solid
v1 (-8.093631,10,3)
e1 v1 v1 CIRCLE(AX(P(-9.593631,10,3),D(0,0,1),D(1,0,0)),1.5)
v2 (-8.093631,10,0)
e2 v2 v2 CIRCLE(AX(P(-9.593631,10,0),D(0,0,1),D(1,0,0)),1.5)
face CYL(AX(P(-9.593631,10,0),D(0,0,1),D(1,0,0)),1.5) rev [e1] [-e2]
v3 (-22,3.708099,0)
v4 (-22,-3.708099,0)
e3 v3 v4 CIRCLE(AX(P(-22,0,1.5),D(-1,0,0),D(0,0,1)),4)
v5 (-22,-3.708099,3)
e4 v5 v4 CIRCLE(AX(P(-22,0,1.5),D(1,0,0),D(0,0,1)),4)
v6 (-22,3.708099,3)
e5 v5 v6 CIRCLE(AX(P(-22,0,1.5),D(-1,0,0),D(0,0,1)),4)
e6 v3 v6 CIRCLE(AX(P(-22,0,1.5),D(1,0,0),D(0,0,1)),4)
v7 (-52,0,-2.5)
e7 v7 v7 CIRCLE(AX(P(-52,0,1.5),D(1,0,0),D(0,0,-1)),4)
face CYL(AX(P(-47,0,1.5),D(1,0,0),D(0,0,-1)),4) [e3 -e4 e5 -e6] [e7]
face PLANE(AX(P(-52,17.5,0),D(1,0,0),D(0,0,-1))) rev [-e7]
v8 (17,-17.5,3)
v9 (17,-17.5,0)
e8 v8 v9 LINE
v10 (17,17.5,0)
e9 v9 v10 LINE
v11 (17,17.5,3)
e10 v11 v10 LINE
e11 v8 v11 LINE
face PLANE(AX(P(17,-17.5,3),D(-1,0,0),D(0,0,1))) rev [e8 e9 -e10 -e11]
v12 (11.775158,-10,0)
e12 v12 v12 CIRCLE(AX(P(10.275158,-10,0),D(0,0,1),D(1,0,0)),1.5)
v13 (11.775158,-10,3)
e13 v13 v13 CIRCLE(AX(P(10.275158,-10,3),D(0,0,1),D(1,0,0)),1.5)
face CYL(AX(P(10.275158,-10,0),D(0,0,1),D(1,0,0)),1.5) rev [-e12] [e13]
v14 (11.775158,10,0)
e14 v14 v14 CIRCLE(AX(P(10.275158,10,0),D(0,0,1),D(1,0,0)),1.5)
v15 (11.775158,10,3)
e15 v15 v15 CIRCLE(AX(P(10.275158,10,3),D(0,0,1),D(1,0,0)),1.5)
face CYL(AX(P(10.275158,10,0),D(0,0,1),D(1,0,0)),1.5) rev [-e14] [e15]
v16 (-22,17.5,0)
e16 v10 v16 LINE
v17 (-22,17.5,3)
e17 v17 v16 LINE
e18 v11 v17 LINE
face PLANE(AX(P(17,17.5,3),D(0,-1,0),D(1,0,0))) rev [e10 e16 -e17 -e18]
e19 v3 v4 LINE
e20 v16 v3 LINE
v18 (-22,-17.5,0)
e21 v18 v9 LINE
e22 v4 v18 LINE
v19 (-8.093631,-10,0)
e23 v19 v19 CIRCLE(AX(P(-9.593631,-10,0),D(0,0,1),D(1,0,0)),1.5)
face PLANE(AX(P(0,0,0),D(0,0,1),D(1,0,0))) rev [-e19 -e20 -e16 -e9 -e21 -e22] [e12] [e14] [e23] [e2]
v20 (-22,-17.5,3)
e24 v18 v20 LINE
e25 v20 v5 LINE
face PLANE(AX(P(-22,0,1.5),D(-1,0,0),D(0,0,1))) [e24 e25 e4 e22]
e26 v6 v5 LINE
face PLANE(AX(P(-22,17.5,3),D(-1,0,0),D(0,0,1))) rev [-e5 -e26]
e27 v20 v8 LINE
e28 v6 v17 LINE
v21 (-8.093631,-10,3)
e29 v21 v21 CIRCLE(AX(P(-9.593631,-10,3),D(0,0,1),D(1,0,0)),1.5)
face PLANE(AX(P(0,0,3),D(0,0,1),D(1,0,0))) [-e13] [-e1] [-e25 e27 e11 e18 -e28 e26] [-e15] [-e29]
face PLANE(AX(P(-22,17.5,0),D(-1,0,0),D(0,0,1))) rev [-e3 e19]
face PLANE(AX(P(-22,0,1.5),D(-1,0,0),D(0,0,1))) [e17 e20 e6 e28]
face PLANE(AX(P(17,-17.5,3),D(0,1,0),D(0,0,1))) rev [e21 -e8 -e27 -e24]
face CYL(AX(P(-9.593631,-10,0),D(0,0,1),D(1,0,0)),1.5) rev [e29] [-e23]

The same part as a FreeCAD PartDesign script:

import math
import FreeCAD as App
import Part
import Sketcher

V = App.Vector
Q = App.Units.Quantity

doc = App.newDocument("Part")
body = doc.addObject("PartDesign::Body", "Body")

# Sketch on XY plane
sketch1 = body.newObject("Sketcher::SketchObject", "Sketch")
sketch1.AttachmentSupport = (doc.getObject("XY_Plane"), [""])
sketch1.MapMode = "FlatFace"
sketch1.addGeometry([
    Part.LineSegment(V(-17, 18, 0), V(-17, -18, 0)),
    Part.LineSegment(V(-17, -18, 0), V(17, -18, 0)),
    Part.LineSegment(V(17, -18, 0), V(17, 18, 0)),
    Part.LineSegment(V(17, 18, 0), V(-17, 18, 0)),
], False)
sketch1.addConstraint([
    Sketcher.Constraint("Coincident", 0, 2, 1, 1),
    Sketcher.Constraint("Coincident", 1, 2, 2, 1),
    Sketcher.Constraint("Coincident", 2, 2, 3, 1),
    Sketcher.Constraint("Coincident", 3, 2, 0, 1),
    Sketcher.Constraint("Vertical", 0),
    Sketcher.Constraint("Horizontal", 1),
    Sketcher.Constraint("Vertical", 2),
    Sketcher.Constraint("Horizontal", 3),
    Sketcher.Constraint("Symmetric", 0, 2, 2, 2, -1, 1),
    Sketcher.Constraint("DistanceX", 1, 1, 1, 2, Q("34 mm")),
    Sketcher.Constraint("DistanceY", 0, 2, 0, 1, Q("35 mm")),
])
pad1 = body.newObject("PartDesign::Pad", "Pad")
pad1.Profile = sketch1
pad1.Length = 3

# Sketch on XY plane
sketch2 = body.newObject("Sketcher::SketchObject", "Sketch001")
sketch2.AttachmentSupport = (doc.getObject("XY_Plane"), [""])
sketch2.MapMode = "FlatFace"
sketch2.AttachmentOffset = App.Placement(V(0, 0, 3), App.Rotation())
sketch2.addGeometry([
    Part.LineSegment(V(-22, 5, 0), V(-22, -5, 0)),
    Part.LineSegment(V(-22, -5, 0), V(-17, -5, 0)),
    Part.LineSegment(V(-17, -5, 0), V(-17, 5, 0)),
    Part.LineSegment(V(-17, 5, 0), V(-22, 5, 0)),
], False)
sketch2.addConstraint([
    Sketcher.Constraint("Coincident", 0, 2, 1, 1),
    Sketcher.Constraint("Coincident", 1, 2, 2, 1),
    Sketcher.Constraint("Coincident", 2, 2, 3, 1),
    Sketcher.Constraint("Coincident", 3, 2, 0, 1),
    Sketcher.Constraint("Vertical", 0),
    Sketcher.Constraint("Horizontal", 1),
    Sketcher.Constraint("Vertical", 2),
    Sketcher.Constraint("Horizontal", 3),
    Sketcher.Constraint("DistanceX", 1, 1, 1, 2, Q("5 mm")),
    Sketcher.Constraint("DistanceY", 0, 2, 0, 1, Q("10 mm")),
    Sketcher.Constraint("DistanceX", 0, 2, -1, 1, Q("22 mm")),
    Sketcher.Constraint("DistanceY", 0, 2, -1, 1, Q("5 mm")),
])
pad2 = body.newObject("PartDesign::Pad", "Pad001")
pad2.Profile = sketch2
pad2.Length = 3
pad2.Reversed = True

# Sketch on XY plane
sketch3 = body.newObject("Sketcher::SketchObject", "Sketch002")
sketch3.AttachmentSupport = (doc.getObject("XY_Plane"), [""])
sketch3.MapMode = "FlatFace"
sketch3.AttachmentOffset = App.Placement(V(0, 0, 3), App.Rotation())
sketch3.addGeometry([
    Part.Circle(V(10.3, 10, 0), V(0, 0, 1), 1.5),
    Part.Circle(V(10.3, -10, 0), V(0, 0, 1), 1.5),
    Part.Circle(V(-9.6, 10, 0), V(0, 0, 1), 1.5),
    Part.Circle(V(-9.6, -10, 0), V(0, 0, 1), 1.5),
], False)
sketch3.addConstraint([
    Sketcher.Constraint("Equal", 0, 1),
    Sketcher.Constraint("Equal", 1, 2),
    Sketcher.Constraint("Equal", 2, 3),
    Sketcher.Constraint("Symmetric", 0, 3, 1, 3, -1),
    Sketcher.Constraint("Symmetric", 2, 3, 3, 3, -1),
    Sketcher.Constraint("Horizontal", 0, 3, 2, 3),
    Sketcher.Constraint("Diameter", 0, Q("3 mm")),
    Sketcher.Constraint("DistanceY", -1, 1, 0, 3, Q("10 mm")),
    Sketcher.Constraint("DistanceX", -1, 1, 0, 3, Q("10.275158 mm")),
    Sketcher.Constraint("DistanceX", 2, 3, -1, 1, Q("9.593631 mm")),
])
pocket1 = body.newObject("PartDesign::Pocket", "Pocket")
pocket1.Profile = sketch3
pocket1.Length = 3

# Sketch on YZ plane
sketch4 = body.newObject("Sketcher::SketchObject", "Sketch003")
sketch4.AttachmentSupport = (doc.getObject("YZ_Plane"), [""])
sketch4.MapMode = "FlatFace"
sketch4.AttachmentOffset = App.Placement(V(0, 0, -22), App.Rotation())
sketch4.addGeometry(Part.Circle(V(0, 1.5, 0), V(0, 0, 1), 4), False)
sketch4.addConstraint([
    Sketcher.Constraint("PointOnObject", 0, 3, -2),
    Sketcher.Constraint("Diameter", 0, Q("8 mm")),
    Sketcher.Constraint("DistanceY", -1, 1, 0, 3, Q("1.5 mm")),
])
pad3 = body.newObject("PartDesign::Pad", "Pad002")
pad3.Profile = sketch4
pad3.Length = 25
pad3.Reversed = True

# Sketch on YZ plane
sketch5 = body.newObject("Sketcher::SketchObject", "Sketch004")
sketch5.AttachmentSupport = (doc.getObject("YZ_Plane"), [""])
sketch5.MapMode = "FlatFace"
sketch5.AttachmentOffset = App.Placement(V(0, 0, -17), App.Rotation())
sketch5.addGeometry(Part.Circle(V(0, 1.5, 0), V(0, 0, 1), 4), False)
sketch5.addConstraint([
    Sketcher.Constraint("PointOnObject", 0, 3, -2),
    Sketcher.Constraint("Diameter", 0, Q("8 mm")),
    Sketcher.Constraint("DistanceY", -1, 1, 0, 3, Q("1.5 mm")),
])
pad4 = body.newObject("PartDesign::Pad", "Pad003")
pad4.Profile = sketch5
pad4.Length = 5
pad4.Reversed = True

# Sketch on YZ plane
sketch6 = body.newObject("Sketcher::SketchObject", "Sketch005")
sketch6.AttachmentSupport = (doc.getObject("YZ_Plane"), [""])
sketch6.MapMode = "FlatFace"
sketch6.AttachmentOffset = App.Placement(V(0, 0, -17), App.Rotation())
sketch6.addGeometry([
    Part.LineSegment(V(3.7, 3, 0), V(5, 3, 0)),  # 0
    Part.LineSegment(V(5, 3, 0), V(5, 0, 0)),  # 1
    Part.LineSegment(V(5, 0, 0), V(3.7, 0, 0)),  # 2
    Part.ArcOfCircle(Part.Circle(V(0, 1.5, 0), V(0, 0, 1), 4), math.radians(-22), math.radians(22)),  # 3
    Part.LineSegment(V(-3.7, 0, 0), V(-5, 0, 0)),  # 4
    Part.LineSegment(V(-5, 0, 0), V(-5, 3, 0)),  # 5
    Part.LineSegment(V(-5, 3, 0), V(-3.7, 3, 0)),  # 6
    Part.ArcOfCircle(Part.Circle(V(0, 1.5, 0), V(0, 0, 1), 4), math.radians(158), math.radians(202)),  # 7
], False)
sketch6.addConstraint([
    Sketcher.Constraint("Coincident", 0, 2, 1, 1),
    Sketcher.Constraint("Coincident", 1, 2, 2, 1),
    Sketcher.Constraint("Coincident", 2, 2, 3, 1),
    Sketcher.Constraint("Coincident", 3, 2, 0, 1),
    Sketcher.Constraint("Coincident", 4, 2, 5, 1),
    Sketcher.Constraint("Coincident", 5, 2, 6, 1),
    Sketcher.Constraint("Coincident", 6, 2, 7, 1),
    Sketcher.Constraint("Coincident", 7, 2, 4, 1),
    Sketcher.Constraint("Horizontal", 0),
    Sketcher.Constraint("Vertical", 1),
    Sketcher.Constraint("Horizontal", 2),
    Sketcher.Constraint("Horizontal", 4),
    Sketcher.Constraint("Vertical", 5),
    Sketcher.Constraint("Horizontal", 6),
    Sketcher.Constraint("Coincident", 7, 3, 3, 3),
    Sketcher.Constraint("Equal", 3, 7),
    Sketcher.Constraint("Symmetric", 1, 2, 4, 2, -1, 1),
    Sketcher.Constraint("Symmetric", 3, 2, 6, 2, -2),
    Sketcher.Constraint("PointOnObject", 1, 2, -1),
    Sketcher.Constraint("Vertical", 2, 2, 3, 2),
    Sketcher.Constraint("Radius", 3, Q("4 mm")),
    Sketcher.Constraint("DistanceY", 1, 2, 1, 1, Q("3 mm")),
    Sketcher.Constraint("DistanceX", -1, 1, 0, 2, Q("5 mm")),
])
pocket2 = body.newObject("PartDesign::Pocket", "Pocket001")
pocket2.Profile = sketch6
pocket2.Length = 5

# Sketch on YZ plane
sketch7 = body.newObject("Sketcher::SketchObject", "Sketch006")
sketch7.AttachmentSupport = (doc.getObject("YZ_Plane"), [""])
sketch7.MapMode = "FlatFace"
sketch7.AttachmentOffset = App.Placement(V(0, 0, -17), App.Rotation())
sketch7.addGeometry([
    Part.LineSegment(V(-17.5, 3, 0), V(-3.7, 3, 0)),  # 0
    Part.ArcOfCircle(Part.Circle(V(0, 1.5, 0), V(0, 0, 1), 4), math.radians(158), math.radians(202)),  # 1
    Part.LineSegment(V(-3.7, 0, 0), V(-17.5, 0, 0)),  # 2
    Part.LineSegment(V(-17.5, 0, 0), V(-17.5, 3, 0)),  # 3
    Part.LineSegment(V(17.5, 0, 0), V(3.7, 0, 0)),  # 4
    Part.ArcOfCircle(Part.Circle(V(0, 1.5, 0), V(0, 0, 1), 4), math.radians(-22), math.radians(22)),  # 5
    Part.LineSegment(V(3.7, 3, 0), V(17.5, 3, 0)),  # 6
    Part.LineSegment(V(17.5, 3, 0), V(17.5, 0, 0)),  # 7
], False)
sketch7.addConstraint([
    Sketcher.Constraint("Coincident", 0, 2, 1, 1),
    Sketcher.Constraint("Coincident", 1, 2, 2, 1),
    Sketcher.Constraint("Coincident", 2, 2, 3, 1),
    Sketcher.Constraint("Coincident", 3, 2, 0, 1),
    Sketcher.Constraint("Coincident", 4, 2, 5, 1),
    Sketcher.Constraint("Coincident", 5, 2, 6, 1),
    Sketcher.Constraint("Coincident", 6, 2, 7, 1),
    Sketcher.Constraint("Coincident", 7, 2, 4, 1),
    Sketcher.Constraint("Horizontal", 0),
    Sketcher.Constraint("Horizontal", 2),
    Sketcher.Constraint("Vertical", 3),
    Sketcher.Constraint("Horizontal", 4),
    Sketcher.Constraint("Horizontal", 6),
    Sketcher.Constraint("Vertical", 7),
    Sketcher.Constraint("Coincident", 5, 3, 1, 3),
    Sketcher.Constraint("Equal", 1, 5),
    Sketcher.Constraint("Symmetric", 1, 2, 4, 2, -1, 1),
    Sketcher.Constraint("Symmetric", 0, 2, 5, 2, -2),
    Sketcher.Constraint("Vertical", 0, 2, 1, 2),
    Sketcher.Constraint("Equal", 2, 4),
    Sketcher.Constraint("Radius", 1, Q("4 mm")),
    Sketcher.Constraint("DistanceY", 3, 1, 3, 2, Q("3 mm")),
    Sketcher.Constraint("DistanceX", 2, 2, -1, 1, Q("17.5 mm")),
])
pad5 = body.newObject("PartDesign::Pad", "Pad004")
pad5.Profile = sketch7
pad5.Length = 5
pad5.Reversed = True

# Sketch on XZ plane
sketch8 = body.newObject("Sketcher::SketchObject", "Sketch007")
sketch8.AttachmentSupport = (doc.getObject("XZ_Plane"), [""])
sketch8.MapMode = "FlatFace"
sketch8.AttachmentOffset = App.Placement(V(0, 0, 17.5), App.Rotation())
sketch8.addGeometry([
    Part.LineSegment(V(-22, 5.5, 0), V(-22, 3, 0)),  # 0
    Part.LineSegment(V(-22, 3, 0), V(-17, 3, 0)),  # 1
    Part.LineSegment(V(-17, 3, 0), V(-17, 5.5, 0)),  # 2
    Part.LineSegment(V(-17, 5.5, 0), V(-22, 5.5, 0)),  # 3
    Part.LineSegment(V(-22, 0, 0), V(-22, -2.5, 0)),  # 4
    Part.LineSegment(V(-22, -2.5, 0), V(-17, -2.5, 0)),  # 5
    Part.LineSegment(V(-17, -2.5, 0), V(-17, 0, 0)),  # 6
    Part.LineSegment(V(-17, 0, 0), V(-22, 0, 0)),  # 7
], False)
sketch8.addConstraint([
    Sketcher.Constraint("Coincident", 0, 2, 1, 1),
    Sketcher.Constraint("Coincident", 1, 2, 2, 1),
    Sketcher.Constraint("Coincident", 2, 2, 3, 1),
    Sketcher.Constraint("Coincident", 3, 2, 0, 1),
    Sketcher.Constraint("Coincident", 4, 2, 5, 1),
    Sketcher.Constraint("Coincident", 5, 2, 6, 1),
    Sketcher.Constraint("Coincident", 6, 2, 7, 1),
    Sketcher.Constraint("Coincident", 7, 2, 4, 1),
    Sketcher.Constraint("Vertical", 0),
    Sketcher.Constraint("Horizontal", 1),
    Sketcher.Constraint("Vertical", 2),
    Sketcher.Constraint("Horizontal", 3),
    Sketcher.Constraint("Vertical", 4),
    Sketcher.Constraint("Horizontal", 5),
    Sketcher.Constraint("Vertical", 6),
    Sketcher.Constraint("Horizontal", 7),
    Sketcher.Constraint("PointOnObject", 6, 2, -1),
    Sketcher.Constraint("Vertical", 3, 2, 4, 2),
    Sketcher.Constraint("Vertical", 2, 2, 5, 2),
    Sketcher.Constraint("Equal", 2, 4),
    Sketcher.Constraint("DistanceX", 1, 1, 1, 2, Q("5 mm")),
    Sketcher.Constraint("DistanceY", 0, 2, 0, 1, Q("2.5 mm")),
    Sketcher.Constraint("DistanceX", 0, 2, -1, 1, Q("22 mm")),
    Sketcher.Constraint("DistanceY", -1, 1, 0, 2, Q("3 mm")),
])
pocket3 = body.newObject("PartDesign::Pocket", "Pocket002")
pocket3.Profile = sketch8
pocket3.Type = "ThroughAll"

# Sketch on YZ plane
sketch9 = body.newObject("Sketcher::SketchObject", "Sketch008")
sketch9.AttachmentSupport = (doc.getObject("YZ_Plane"), [""])
sketch9.MapMode = "FlatFace"
sketch9.AttachmentOffset = App.Placement(V(0, 0, -47), App.Rotation())
sketch9.addGeometry(Part.Circle(V(0, 1.5, 0), V(0, 0, 1), 4), False)
sketch9.addConstraint([
    Sketcher.Constraint("PointOnObject", 0, 3, -2),
    Sketcher.Constraint("Diameter", 0, Q("8 mm")),
    Sketcher.Constraint("DistanceY", -1, 1, 0, 3, Q("1.5 mm")),
])
pad6 = body.newObject("PartDesign::Pad", "Pad005")
pad6.Profile = sketch9
pad6.Length = 29.5
pad6.Reversed = True

# Sketch on XZ plane
sketch10 = body.newObject("Sketcher::SketchObject", "Sketch009")
sketch10.AttachmentSupport = (doc.getObject("XZ_Plane"), [""])
sketch10.MapMode = "FlatFace"
sketch10.AttachmentOffset = App.Placement(V(0, 0, 17.5), App.Rotation())
sketch10.addGeometry([
    Part.LineSegment(V(-79, 8, 0), V(-79, -2, 0)),
    Part.LineSegment(V(-79, -2, 0), V(-52, -2, 0)),
    Part.LineSegment(V(-52, -2, 0), V(-52, 8, 0)),
    Part.LineSegment(V(-52, 8, 0), V(-79, 8, 0)),
], False)
sketch10.addConstraint([
    Sketcher.Constraint("Coincident", 0, 2, 1, 1),
    Sketcher.Constraint("Coincident", 1, 2, 2, 1),
    Sketcher.Constraint("Coincident", 2, 2, 3, 1),
    Sketcher.Constraint("Coincident", 3, 2, 0, 1),
    Sketcher.Constraint("Vertical", 0),
    Sketcher.Constraint("Horizontal", 1),
    Sketcher.Constraint("Vertical", 2),
    Sketcher.Constraint("Horizontal", 3),
    Sketcher.Constraint("DistanceX", 1, 2, -1, 1, Q("52 mm")),
    Sketcher.Constraint("DistanceY", 0, 2, -1, 1, Q("2.5 mm")),
    Sketcher.Constraint("DistanceX", 1, 1, 1, 2, Q("26.980294 mm")),
    Sketcher.Constraint("DistanceY", 0, 2, 0, 1, Q("10.390157 mm")),
])
pocket4 = body.newObject("PartDesign::Pocket", "Pocket003")
pocket4.Profile = sketch10
pocket4.Type = "ThroughAll"

doc.recompute()
